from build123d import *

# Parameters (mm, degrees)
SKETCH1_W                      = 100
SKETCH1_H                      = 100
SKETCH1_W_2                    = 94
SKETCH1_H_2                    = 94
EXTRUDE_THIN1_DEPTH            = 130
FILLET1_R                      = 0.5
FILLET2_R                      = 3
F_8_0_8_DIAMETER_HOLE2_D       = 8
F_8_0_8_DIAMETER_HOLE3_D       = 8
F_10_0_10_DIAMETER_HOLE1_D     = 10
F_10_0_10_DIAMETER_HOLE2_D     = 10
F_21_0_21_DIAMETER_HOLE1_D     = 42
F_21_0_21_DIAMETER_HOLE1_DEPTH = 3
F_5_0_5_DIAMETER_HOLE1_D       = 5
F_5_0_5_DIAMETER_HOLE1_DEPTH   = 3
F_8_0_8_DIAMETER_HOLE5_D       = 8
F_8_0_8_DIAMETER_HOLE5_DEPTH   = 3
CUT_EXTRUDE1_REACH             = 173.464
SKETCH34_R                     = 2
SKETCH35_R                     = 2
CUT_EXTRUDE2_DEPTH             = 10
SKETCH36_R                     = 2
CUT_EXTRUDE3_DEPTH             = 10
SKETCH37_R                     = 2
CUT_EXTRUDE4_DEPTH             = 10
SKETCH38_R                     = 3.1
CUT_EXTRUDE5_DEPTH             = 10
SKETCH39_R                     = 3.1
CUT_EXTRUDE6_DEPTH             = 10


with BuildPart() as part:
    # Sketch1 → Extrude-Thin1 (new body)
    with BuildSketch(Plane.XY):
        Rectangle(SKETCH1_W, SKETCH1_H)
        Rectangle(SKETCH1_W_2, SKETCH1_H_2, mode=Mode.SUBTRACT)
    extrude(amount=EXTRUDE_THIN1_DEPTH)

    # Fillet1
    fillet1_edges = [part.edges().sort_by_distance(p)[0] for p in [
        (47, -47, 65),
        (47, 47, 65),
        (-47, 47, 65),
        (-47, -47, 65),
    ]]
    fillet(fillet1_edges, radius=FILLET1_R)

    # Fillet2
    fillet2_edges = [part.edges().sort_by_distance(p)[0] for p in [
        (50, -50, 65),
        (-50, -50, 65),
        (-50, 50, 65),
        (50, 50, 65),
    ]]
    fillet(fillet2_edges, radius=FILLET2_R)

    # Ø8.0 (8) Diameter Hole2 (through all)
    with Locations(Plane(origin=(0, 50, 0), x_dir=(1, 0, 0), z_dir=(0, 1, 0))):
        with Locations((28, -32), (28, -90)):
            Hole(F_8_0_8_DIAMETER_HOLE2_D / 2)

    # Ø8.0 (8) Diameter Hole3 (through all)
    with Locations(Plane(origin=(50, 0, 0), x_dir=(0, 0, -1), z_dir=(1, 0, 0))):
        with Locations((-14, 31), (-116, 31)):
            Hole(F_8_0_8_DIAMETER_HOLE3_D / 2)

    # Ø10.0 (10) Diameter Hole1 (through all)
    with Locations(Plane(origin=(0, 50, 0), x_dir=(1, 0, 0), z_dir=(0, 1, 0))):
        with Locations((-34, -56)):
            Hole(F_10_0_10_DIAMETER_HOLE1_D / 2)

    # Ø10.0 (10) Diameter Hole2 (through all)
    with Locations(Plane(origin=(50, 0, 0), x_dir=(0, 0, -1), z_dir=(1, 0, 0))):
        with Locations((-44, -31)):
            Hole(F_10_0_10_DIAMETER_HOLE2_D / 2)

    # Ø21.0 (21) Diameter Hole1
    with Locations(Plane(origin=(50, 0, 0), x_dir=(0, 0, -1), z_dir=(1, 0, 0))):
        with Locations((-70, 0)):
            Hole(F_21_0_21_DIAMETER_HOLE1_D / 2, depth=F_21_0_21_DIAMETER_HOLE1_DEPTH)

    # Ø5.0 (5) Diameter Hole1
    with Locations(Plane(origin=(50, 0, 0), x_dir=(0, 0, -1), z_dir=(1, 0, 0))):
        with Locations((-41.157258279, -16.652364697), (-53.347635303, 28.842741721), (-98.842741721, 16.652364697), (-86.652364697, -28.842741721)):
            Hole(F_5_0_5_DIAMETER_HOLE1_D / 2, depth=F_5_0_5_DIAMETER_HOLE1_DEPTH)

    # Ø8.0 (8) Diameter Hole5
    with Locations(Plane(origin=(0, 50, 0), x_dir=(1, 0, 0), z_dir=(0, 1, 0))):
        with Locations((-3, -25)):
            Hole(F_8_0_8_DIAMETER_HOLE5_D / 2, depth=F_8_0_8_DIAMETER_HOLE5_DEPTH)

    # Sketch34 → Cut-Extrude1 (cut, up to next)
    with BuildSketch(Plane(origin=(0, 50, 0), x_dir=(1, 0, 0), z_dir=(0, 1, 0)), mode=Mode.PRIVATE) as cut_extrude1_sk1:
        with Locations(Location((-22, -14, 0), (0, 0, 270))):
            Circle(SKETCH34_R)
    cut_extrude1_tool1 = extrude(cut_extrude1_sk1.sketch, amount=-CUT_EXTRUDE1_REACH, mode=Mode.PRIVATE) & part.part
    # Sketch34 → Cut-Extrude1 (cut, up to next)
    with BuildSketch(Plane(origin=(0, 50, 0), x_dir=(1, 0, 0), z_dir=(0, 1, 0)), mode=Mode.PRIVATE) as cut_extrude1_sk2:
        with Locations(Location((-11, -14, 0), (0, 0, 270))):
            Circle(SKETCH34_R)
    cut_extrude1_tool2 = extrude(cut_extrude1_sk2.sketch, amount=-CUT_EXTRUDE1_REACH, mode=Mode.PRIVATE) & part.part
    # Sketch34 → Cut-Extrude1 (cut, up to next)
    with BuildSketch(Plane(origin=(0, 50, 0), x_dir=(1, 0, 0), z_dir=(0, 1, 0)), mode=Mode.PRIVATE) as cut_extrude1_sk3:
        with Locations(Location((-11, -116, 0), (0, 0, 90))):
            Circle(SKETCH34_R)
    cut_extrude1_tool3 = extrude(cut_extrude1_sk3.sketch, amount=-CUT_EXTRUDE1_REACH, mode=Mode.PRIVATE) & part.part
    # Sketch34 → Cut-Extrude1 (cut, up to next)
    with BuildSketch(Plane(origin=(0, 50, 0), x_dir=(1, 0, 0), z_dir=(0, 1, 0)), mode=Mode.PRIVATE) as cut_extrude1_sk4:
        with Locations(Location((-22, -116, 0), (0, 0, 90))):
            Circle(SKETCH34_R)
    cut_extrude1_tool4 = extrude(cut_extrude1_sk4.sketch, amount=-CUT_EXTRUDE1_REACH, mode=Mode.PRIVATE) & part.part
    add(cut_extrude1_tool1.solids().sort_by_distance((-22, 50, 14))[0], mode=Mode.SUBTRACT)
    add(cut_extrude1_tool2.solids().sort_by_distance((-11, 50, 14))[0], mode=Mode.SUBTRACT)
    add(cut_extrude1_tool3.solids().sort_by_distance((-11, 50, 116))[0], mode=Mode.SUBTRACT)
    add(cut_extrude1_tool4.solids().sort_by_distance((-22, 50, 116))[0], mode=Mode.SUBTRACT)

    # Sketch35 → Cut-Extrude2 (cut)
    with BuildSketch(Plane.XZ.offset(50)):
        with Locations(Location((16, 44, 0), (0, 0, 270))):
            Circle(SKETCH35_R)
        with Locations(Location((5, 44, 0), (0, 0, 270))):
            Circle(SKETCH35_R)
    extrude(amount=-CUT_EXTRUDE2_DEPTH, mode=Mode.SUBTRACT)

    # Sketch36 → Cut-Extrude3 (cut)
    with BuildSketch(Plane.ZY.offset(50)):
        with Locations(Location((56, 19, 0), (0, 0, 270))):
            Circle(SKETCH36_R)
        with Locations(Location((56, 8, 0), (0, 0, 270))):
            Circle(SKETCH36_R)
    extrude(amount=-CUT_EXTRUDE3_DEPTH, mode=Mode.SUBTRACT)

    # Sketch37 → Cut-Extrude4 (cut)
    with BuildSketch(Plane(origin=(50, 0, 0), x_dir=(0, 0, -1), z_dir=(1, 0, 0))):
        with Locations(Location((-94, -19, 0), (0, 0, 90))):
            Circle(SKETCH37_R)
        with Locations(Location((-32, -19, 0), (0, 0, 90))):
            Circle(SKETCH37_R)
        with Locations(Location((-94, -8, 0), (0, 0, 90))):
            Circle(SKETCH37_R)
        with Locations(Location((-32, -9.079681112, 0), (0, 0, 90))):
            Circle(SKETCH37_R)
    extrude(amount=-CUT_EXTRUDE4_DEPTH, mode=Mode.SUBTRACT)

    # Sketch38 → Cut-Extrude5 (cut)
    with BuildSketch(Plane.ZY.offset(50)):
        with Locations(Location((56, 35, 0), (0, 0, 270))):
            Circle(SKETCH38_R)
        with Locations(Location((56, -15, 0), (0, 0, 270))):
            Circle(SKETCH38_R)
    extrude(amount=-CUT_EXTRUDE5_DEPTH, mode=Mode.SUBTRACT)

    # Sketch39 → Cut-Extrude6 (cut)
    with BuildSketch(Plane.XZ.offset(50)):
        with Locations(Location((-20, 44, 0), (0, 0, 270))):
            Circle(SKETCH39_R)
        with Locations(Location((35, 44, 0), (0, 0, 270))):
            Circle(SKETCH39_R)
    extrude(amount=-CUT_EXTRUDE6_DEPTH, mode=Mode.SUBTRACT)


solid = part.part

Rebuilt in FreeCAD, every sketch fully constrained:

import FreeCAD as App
import Part
import Sketcher
from FreeCAD import Vector
Q = App.Units.Quantity


def edges_at(feature, points):
    """Names of the edges that pass closest to the given points."""
    edges = feature.Shape.Edges
    near = lambda p: min(range(len(edges)), key=lambda i: edges[i].distToShape(Part.Vertex(*p))[0])
    return sorted({f"Edge{near(p) + 1}" for p in points})

doc = App.newDocument("Part")
body = doc.addObject("PartDesign::Body", "Body")

# Sketch on XY plane
sketch1 = doc.addObject("Sketcher::SketchObject", "Sketch")
body.addObject(sketch1)
sketch1.AttachmentSupport = (doc.XY_Plane, [""])
sketch1.MapMode = "FlatFace"
sketch1.addGeometry([
    Part.LineSegment(Vector(-50, 50, 0), Vector(-50, -50, 0)),  # 0
    Part.LineSegment(Vector(-50, -50, 0), Vector(50, -50, 0)),  # 1
    Part.LineSegment(Vector(50, -50, 0), Vector(50, 50, 0)),  # 2
    Part.LineSegment(Vector(50, 50, 0), Vector(-50, 50, 0)),  # 3
    Part.LineSegment(Vector(47, -47, 0), Vector(-47, -47, 0)),  # 4
    Part.LineSegment(Vector(-47, -47, 0), Vector(-47, 47, 0)),  # 5
    Part.LineSegment(Vector(-47, 47, 0), Vector(47, 47, 0)),  # 6
    Part.LineSegment(Vector(47, 47, 0), Vector(47, -47, 0)),  # 7
], False)
sketch1.addConstraint([
    Sketcher.Constraint("Coincident", 0, 2, 1, 1),
    Sketcher.Constraint("Coincident", 1, 2, 2, 1),
    Sketcher.Constraint("Coincident", 2, 2, 3, 1),
    Sketcher.Constraint("Coincident", 3, 2, 0, 1),
    Sketcher.Constraint("Coincident", 4, 2, 5, 1),
    Sketcher.Constraint("Coincident", 5, 2, 6, 1),
    Sketcher.Constraint("Coincident", 6, 2, 7, 1),
    Sketcher.Constraint("Coincident", 7, 2, 4, 1),
    Sketcher.Constraint("Vertical", 0),
    Sketcher.Constraint("Horizontal", 1),
    Sketcher.Constraint("Vertical", 2),
    Sketcher.Constraint("Horizontal", 3),
    Sketcher.Constraint("Horizontal", 4),
    Sketcher.Constraint("Vertical", 5),
    Sketcher.Constraint("Horizontal", 6),
    Sketcher.Constraint("Vertical", 7),
    Sketcher.Constraint("Symmetric", 0, 2, 2, 2, -1, 1),
    Sketcher.Constraint("Symmetric", 4, 2, 6, 2, -1, 1),
    Sketcher.Constraint("Equal", 3, 0),
    Sketcher.Constraint("Equal", 6, 5),
    Sketcher.Constraint("DistanceX", 1, 1, 1, 2, Q("100 mm")),
    Sketcher.Constraint("DistanceX", 4, 2, 4, 1, Q("94 mm")),
])
pad1 = doc.addObject("PartDesign::Pad", "Pad")
body.addObject(pad1)
pad1.Profile = sketch1
pad1.Length = 130
doc.recompute()

fillet = doc.addObject("PartDesign::Fillet", "Fillet")
body.addObject(fillet)
fillet.Base = (pad1, edges_at(pad1, [
    (47, -47, 65),
    (47, 47, 65),
    (-47, 47, 65),
    (-47, -47, 65),
]))
fillet.Radius = 0.5
doc.recompute()

fillet2 = doc.addObject("PartDesign::Fillet", "Fillet001")
body.addObject(fillet2)
fillet2.Base = (fillet, edges_at(fillet, [
    (50, -50, 65),
    (-50, -50, 65),
    (-50, 50, 65),
    (50, 50, 65),
]))
fillet2.Radius = 3

# Sketch on XZ plane
sketch2 = doc.addObject("Sketcher::SketchObject", "Sketch001")
body.addObject(sketch2)
sketch2.AttachmentSupport = (doc.XZ_Plane, [""])
sketch2.MapMode = "FlatFace"
sketch2.AttachmentOffset = App.Placement(Vector(0, 0, -50), App.Rotation())
sketch2.addGeometry([
    Part.Circle(Vector(28, 32, 0), Vector(0, 0, 1), 4),
    Part.Circle(Vector(28, 90, 0), Vector(0, 0, 1), 4),
], False)
sketch2.addConstraint([
    Sketcher.Constraint("Equal", 0, 1),
    Sketcher.Constraint("Vertical", 0, 3, 1, 3),
    Sketcher.Constraint("Diameter", 0, Q("8 mm")),
    Sketcher.Constraint("DistanceX", -1, 1, 0, 3, Q("28 mm")),
    Sketcher.Constraint("DistanceY", -1, 1, 0, 3, Q("32 mm")),
    Sketcher.Constraint("DistanceY", -1, 1, 1, 3, Q("90 mm")),
])
doc.recompute()
hole = doc.addObject("PartDesign::Hole", "Hole")
body.addObject(hole)
hole.Profile = sketch2
hole.ThreadType = "None"
hole.Diameter = 8
hole.DepthType = "ThroughAll"
hole.Reversed = True

# Sketch on YZ plane
sketch3 = doc.addObject("Sketcher::SketchObject", "Sketch002")
body.addObject(sketch3)
sketch3.AttachmentSupport = (doc.YZ_Plane, [""])
sketch3.MapMode = "FlatFace"
sketch3.AttachmentOffset = App.Placement(Vector(0, 0, 50), App.Rotation())
sketch3.addGeometry([
    Part.Circle(Vector(31, 14, 0), Vector(0, 0, 1), 4),
    Part.Circle(Vector(31, 116, 0), Vector(0, 0, 1), 4),
], False)
sketch3.addConstraint([
    Sketcher.Constraint("Equal", 0, 1),
    Sketcher.Constraint("Vertical", 0, 3, 1, 3),
    Sketcher.Constraint("Diameter", 0, Q("8 mm")),
    Sketcher.Constraint("DistanceX", -1, 1, 0, 3, Q("31 mm")),
    Sketcher.Constraint("DistanceY", -1, 1, 0, 3, Q("14 mm")),
    Sketcher.Constraint("DistanceY", -1, 1, 1, 3, Q("116 mm")),
])
doc.recompute()
hole2 = doc.addObject("PartDesign::Hole", "Hole001")
body.addObject(hole2)
hole2.Profile = sketch3
hole2.ThreadType = "None"
hole2.Diameter = 8
hole2.DepthType = "ThroughAll"

# Sketch on XZ plane
sketch4 = doc.addObject("Sketcher::SketchObject", "Sketch003")
body.addObject(sketch4)
sketch4.AttachmentSupport = (doc.XZ_Plane, [""])
sketch4.MapMode = "FlatFace"
sketch4.AttachmentOffset = App.Placement(Vector(0, 0, -50), App.Rotation())
sketch4.addGeometry(Part.Circle(Vector(-34, 56, 0), Vector(0, 0, 1), 5), False)
sketch4.addConstraint([
    Sketcher.Constraint("Diameter", 0, Q("10 mm")),
    Sketcher.Constraint("DistanceX", 0, 3, -1, 1, Q("34 mm")),
    Sketcher.Constraint("DistanceY", -1, 1, 0, 3, Q("56 mm")),
])
doc.recompute()
hole3 = doc.addObject("PartDesign::Hole", "Hole002")
body.addObject(hole3)
hole3.Profile = sketch4
hole3.ThreadType = "None"
hole3.Diameter = 10
hole3.DepthType = "ThroughAll"
hole3.Reversed = True

# Sketch on YZ plane
sketch5 = doc.addObject("Sketcher::SketchObject", "Sketch004")
body.addObject(sketch5)
sketch5.AttachmentSupport = (doc.YZ_Plane, [""])
sketch5.MapMode = "FlatFace"
sketch5.AttachmentOffset = App.Placement(Vector(0, 0, 50), App.Rotation())
sketch5.addGeometry(Part.Circle(Vector(-31, 44, 0), Vector(0, 0, 1), 5), False)
sketch5.addConstraint([
    Sketcher.Constraint("Diameter", 0, Q("10 mm")),
    Sketcher.Constraint("DistanceX", 0, 3, -1, 1, Q("31 mm")),
    Sketcher.Constraint("DistanceY", -1, 1, 0, 3, Q("44 mm")),
])
doc.recompute()
hole4 = doc.addObject("PartDesign::Hole", "Hole003")
body.addObject(hole4)
hole4.Profile = sketch5
hole4.ThreadType = "None"
hole4.Diameter = 10
hole4.DepthType = "ThroughAll"

# Sketch on YZ plane
sketch6 = doc.addObject("Sketcher::SketchObject", "Sketch005")
body.addObject(sketch6)
sketch6.AttachmentSupport = (doc.YZ_Plane, [""])
sketch6.MapMode = "FlatFace"
sketch6.AttachmentOffset = App.Placement(Vector(0, 0, 50), App.Rotation())
sketch6.addGeometry(Part.Circle(Vector(0, 70, 0), Vector(0, 0, 1), 21), False)
sketch6.addConstraint([
    Sketcher.Constraint("PointOnObject", 0, 3, -2),
    Sketcher.Constraint("Diameter", 0, Q("42 mm")),
    Sketcher.Constraint("DistanceY", -1, 1, 0, 3, Q("70 mm")),
])
doc.recompute()
hole5 = doc.addObject("PartDesign::Hole", "Hole004")
body.addObject(hole5)
hole5.Profile = sketch6
hole5.ThreadType = "None"
hole5.Diameter = 42
hole5.DepthType = "Dimension"
hole5.Depth = 3
hole5.DrillPoint = "Flat"

# Sketch on YZ plane
sketch7 = doc.addObject("Sketcher::SketchObject", "Sketch006")
body.addObject(sketch7)
sketch7.AttachmentSupport = (doc.YZ_Plane, [""])
sketch7.MapMode = "FlatFace"
sketch7.AttachmentOffset = App.Placement(Vector(0, 0, 50), App.Rotation())
sketch7.addGeometry([
    Part.Circle(Vector(-16.7, 41.2, 0), Vector(0, 0, 1), 2.5),
    Part.Circle(Vector(28.8, 53.3, 0), Vector(0, 0, 1), 2.5),
    Part.Circle(Vector(16.7, 98.8, 0), Vector(0, 0, 1), 2.5),
    Part.Circle(Vector(-28.8, 86.7, 0), Vector(0, 0, 1), 2.5),
], False)
sketch7.addConstraint([
    Sketcher.Constraint("Equal", 0, 1),
    Sketcher.Constraint("Equal", 1, 2),
    Sketcher.Constraint("Equal", 2, 3),
    Sketcher.Constraint("Diameter", 0, Q("5 mm")),
    Sketcher.Constraint("DistanceY", -1, 1, 0, 3, Q("41.157258 mm")),
    Sketcher.Constraint("DistanceX", -1, 1, 1, 3, Q("28.842742 mm")),
    Sketcher.Constraint("DistanceY", -1, 1, 2, 3, Q("98.842742 mm")),
    Sketcher.Constraint("DistanceX", 3, 3, -1, 1, Q("28.842742 mm")),
    Sketcher.Constraint("DistanceX", 0, 3, 2, 3, Q("33.304729 mm")),
    Sketcher.Constraint("DistanceY", 1, 3, 3, 3, Q("33.304729 mm")),
    Sketcher.Constraint("DistanceX", 0, 3, -1, 1, Q("16.652365 mm")),
    Sketcher.Constraint("DistanceY", -1, 1, 1, 3, Q("53.347635 mm")),
])
doc.recompute()
hole6 = doc.addObject("PartDesign::Hole", "Hole005")
body.addObject(hole6)
hole6.Profile = sketch7
hole6.ThreadType = "None"
hole6.Diameter = 5
hole6.DepthType = "Dimension"
hole6.Depth = 3
hole6.DrillPoint = "Flat"

# Sketch on XZ plane
sketch8 = doc.addObject("Sketcher::SketchObject", "Sketch007")
body.addObject(sketch8)
sketch8.AttachmentSupport = (doc.XZ_Plane, [""])
sketch8.MapMode = "FlatFace"
sketch8.AttachmentOffset = App.Placement(Vector(0, 0, -50), App.Rotation())
sketch8.addGeometry(Part.Circle(Vector(-3, 25, 0), Vector(0, 0, 1), 4), False)
sketch8.addConstraint([
    Sketcher.Constraint("Diameter", 0, Q("8 mm")),
    Sketcher.Constraint("DistanceX", 0, 3, -1, 1, Q("3 mm")),
    Sketcher.Constraint("DistanceY", -1, 1, 0, 3, Q("25 mm")),
])
doc.recompute()
hole7 = doc.addObject("PartDesign::Hole", "Hole006")
body.addObject(hole7)
hole7.Profile = sketch8
hole7.ThreadType = "None"
hole7.Diameter = 8
hole7.DepthType = "Dimension"
hole7.Depth = 3
hole7.DrillPoint = "Flat"
hole7.Reversed = True

# Sketch on XZ plane
sketch9 = doc.addObject("Sketcher::SketchObject", "Sketch008")
body.addObject(sketch9)
sketch9.AttachmentSupport = (doc.XZ_Plane, [""])
sketch9.MapMode = "FlatFace"
sketch9.AttachmentOffset = App.Placement(Vector(0, 0, -50), App.Rotation())
sketch9.addGeometry(Part.Circle(Vector(-22, 14, 0), Vector(0, 0, 1), 2), False)
sketch9.addConstraint([
    Sketcher.Constraint("Diameter", 0, Q("4 mm")),
    Sketcher.Constraint("DistanceX", 0, 3, -1, 1, Q("22 mm")),
    Sketcher.Constraint("DistanceY", -1, 1, 0, 3, Q("14 mm")),
])
pocket1 = doc.addObject("PartDesign::Pocket", "Pocket")
body.addObject(pocket1)
pocket1.Profile = sketch9
pocket1.Type = "UpToFirst"
pocket1.Reversed = True

# Sketch on XZ plane
sketch10 = doc.addObject("Sketcher::SketchObject", "Sketch009")
body.addObject(sketch10)
sketch10.AttachmentSupport = (doc.XZ_Plane, [""])
sketch10.MapMode = "FlatFace"
sketch10.AttachmentOffset = App.Placement(Vector(0, 0, -50), App.Rotation())
sketch10.addGeometry(Part.Circle(Vector(-11, 14, 0), Vector(0, 0, 1), 2), False)
sketch10.addConstraint([
    Sketcher.Constraint("Diameter", 0, Q("4 mm")),
    Sketcher.Constraint("DistanceX", 0, 3, -1, 1, Q("11 mm")),
    Sketcher.Constraint("DistanceY", -1, 1, 0, 3, Q("14 mm")),
])
pocket2 = doc.addObject("PartDesign::Pocket", "Pocket001")
body.addObject(pocket2)
pocket2.Profile = sketch10
pocket2.Type = "UpToFirst"
pocket2.Reversed = True

# Sketch on XZ plane
sketch11 = doc.addObject("Sketcher::SketchObject", "Sketch010")
body.addObject(sketch11)
sketch11.AttachmentSupport = (doc.XZ_Plane, [""])
sketch11.MapMode = "FlatFace"
sketch11.AttachmentOffset = App.Placement(Vector(0, 0, -50), App.Rotation())
sketch11.addGeometry(Part.Circle(Vector(-11, 116, 0), Vector(0, 0, 1), 2), False)
sketch11.addConstraint([
    Sketcher.Constraint("Diameter", 0, Q("4 mm")),
    Sketcher.Constraint("DistanceX", 0, 3, -1, 1, Q("11 mm")),
    Sketcher.Constraint("DistanceY", -1, 1, 0, 3, Q("116 mm")),
])
pocket3 = doc.addObject("PartDesign::Pocket", "Pocket002")
body.addObject(pocket3)
pocket3.Profile = sketch11
pocket3.Type = "UpToFirst"
pocket3.Reversed = True

# Sketch on XZ plane
sketch12 = doc.addObject("Sketcher::SketchObject", "Sketch011")
body.addObject(sketch12)
sketch12.AttachmentSupport = (doc.XZ_Plane, [""])
sketch12.MapMode = "FlatFace"
sketch12.AttachmentOffset = App.Placement(Vector(0, 0, -50), App.Rotation())
sketch12.addGeometry(Part.Circle(Vector(-22, 116, 0), Vector(0, 0, 1), 2), False)
sketch12.addConstraint([
    Sketcher.Constraint("Diameter", 0, Q("4 mm")),
    Sketcher.Constraint("DistanceX", 0, 3, -1, 1, Q("22 mm")),
    Sketcher.Constraint("DistanceY", -1, 1, 0, 3, Q("116 mm")),
])
pocket4 = doc.addObject("PartDesign::Pocket", "Pocket003")
body.addObject(pocket4)
pocket4.Profile = sketch12
pocket4.Type = "UpToFirst"
pocket4.Reversed = True

# Sketch on XZ plane
sketch13 = doc.addObject("Sketcher::SketchObject", "Sketch012")
body.addObject(sketch13)
sketch13.AttachmentSupport = (doc.XZ_Plane, [""])
sketch13.MapMode = "FlatFace"
sketch13.AttachmentOffset = App.Placement(Vector(0, 0, 50), App.Rotation())
sketch13.addGeometry([
    Part.Circle(Vector(16, 44, 0), Vector(0, 0, 1), 2),
    Part.Circle(Vector(5, 44, 0), Vector(0, 0, 1), 2),
], False)
sketch13.addConstraint([
    Sketcher.Constraint("Equal", 0, 1),
    Sketcher.Constraint("Horizontal", 0, 3, 1, 3),
    Sketcher.Constraint("Diameter", 0, Q("4 mm")),
    Sketcher.Constraint("DistanceX", -1, 1, 0, 3, Q("16 mm")),
    Sketcher.Constraint("DistanceY", -1, 1, 0, 3, Q("44 mm")),
    Sketcher.Constraint("DistanceX", -1, 1, 1, 3, Q("5 mm")),
])
pocket5 = doc.addObject("PartDesign::Pocket", "Pocket004")
body.addObject(pocket5)
pocket5.Profile = sketch13
pocket5.Length = 10

# Sketch on YZ plane
sketch14 = doc.addObject("Sketcher::SketchObject", "Sketch013")
body.addObject(sketch14)
sketch14.AttachmentSupport = (doc.YZ_Plane, [""])
sketch14.MapMode = "FlatFace"
sketch14.AttachmentOffset = App.Placement(Vector(0, 0, -50), App.Rotation())
sketch14.addGeometry([
    Part.Circle(Vector(19, 56, 0), Vector(0, 0, 1), 2),
    Part.Circle(Vector(8, 56, 0), Vector(0, 0, 1), 2),
], False)
sketch14.addConstraint([
    Sketcher.Constraint("Equal", 0, 1),
    Sketcher.Constraint("Horizontal", 0, 3, 1, 3),
    Sketcher.Constraint("Diameter", 0, Q("4 mm")),
    Sketcher.Constraint("DistanceX", -1, 1, 0, 3, Q("19 mm")),
    Sketcher.Constraint("DistanceY", -1, 1, 0, 3, Q("56 mm")),
    Sketcher.Constraint("DistanceX", -1, 1, 1, 3, Q("8 mm")),
])
pocket6 = doc.addObject("PartDesign::Pocket", "Pocket005")
body.addObject(pocket6)
pocket6.Profile = sketch14
pocket6.Length = 10
pocket6.Reversed = True

# Sketch on YZ plane
sketch15 = doc.addObject("Sketcher::SketchObject", "Sketch014")
body.addObject(sketch15)
sketch15.AttachmentSupport = (doc.YZ_Plane, [""])
sketch15.MapMode = "FlatFace"
sketch15.AttachmentOffset = App.Placement(Vector(0, 0, 50), App.Rotation())
sketch15.addGeometry([
    Part.Circle(Vector(-19, 94, 0), Vector(0, 0, 1), 2),
    Part.Circle(Vector(-19, 32, 0), Vector(0, 0, 1), 2),
    Part.Circle(Vector(-8, 94, 0), Vector(0, 0, 1), 2),
    Part.Circle(Vector(-9.1, 32, 0), Vector(0, 0, 1), 2),
], False)
sketch15.addConstraint([
    Sketcher.Constraint("Equal", 0, 1),
    Sketcher.Constraint("Equal", 1, 2),
    Sketcher.Constraint("Equal", 2, 3),
    Sketcher.Constraint("Horizontal", 0, 3, 2, 3),
    Sketcher.Constraint("Horizontal", 1, 3, 3, 3),
    Sketcher.Constraint("Vertical", 0, 3, 1, 3),
    Sketcher.Constraint("Diameter", 0, Q("4 mm")),
    Sketcher.Constraint("DistanceX", 0, 3, -1, 1, Q("19 mm")),
    Sketcher.Constraint("DistanceY", -1, 1, 0, 3, Q("94 mm")),
    Sketcher.Constraint("DistanceY", -1, 1, 1, 3, Q("32 mm")),
    Sketcher.Constraint("DistanceX", 2, 3, -1, 1, Q("8 mm")),
    Sketcher.Constraint("DistanceX", 3, 3, -1, 1, Q("9.079681 mm")),
])
pocket7 = doc.addObject("PartDesign::Pocket", "Pocket006")
body.addObject(pocket7)
pocket7.Profile = sketch15
pocket7.Length = 10

# Sketch on YZ plane
sketch16 = doc.addObject("Sketcher::SketchObject", "Sketch015")
body.addObject(sketch16)
sketch16.AttachmentSupport = (doc.YZ_Plane, [""])
sketch16.MapMode = "FlatFace"
sketch16.AttachmentOffset = App.Placement(Vector(0, 0, -50), App.Rotation())
sketch16.addGeometry([
    Part.Circle(Vector(35, 56, 0), Vector(0, 0, 1), 3.1),
    Part.Circle(Vector(-15, 56, 0), Vector(0, 0, 1), 3.1),
], False)
sketch16.addConstraint([
    Sketcher.Constraint("Equal", 0, 1),
    Sketcher.Constraint("Horizontal", 0, 3, 1, 3),
    Sketcher.Constraint("Diameter", 0, Q("6.2 mm")),
    Sketcher.Constraint("DistanceX", -1, 1, 0, 3, Q("35 mm")),
    Sketcher.Constraint("DistanceY", -1, 1, 0, 3, Q("56 mm")),
    Sketcher.Constraint("DistanceX", 1, 3, -1, 1, Q("15 mm")),
])
pocket8 = doc.addObject("PartDesign::Pocket", "Pocket007")
body.addObject(pocket8)
pocket8.Profile = sketch16
pocket8.Length = 10
pocket8.Reversed = True

# Sketch on XZ plane
sketch17 = doc.addObject("Sketcher::SketchObject", "Sketch016")
body.addObject(sketch17)
sketch17.AttachmentSupport = (doc.XZ_Plane, [""])
sketch17.MapMode = "FlatFace"
sketch17.AttachmentOffset = App.Placement(Vector(0, 0, 50), App.Rotation())
sketch17.addGeometry([
    Part.Circle(Vector(-20, 44, 0), Vector(0, 0, 1), 3.1),
    Part.Circle(Vector(35, 44, 0), Vector(0, 0, 1), 3.1),
], False)
sketch17.addConstraint([
    Sketcher.Constraint("Equal", 0, 1),
    Sketcher.Constraint("Horizontal", 0, 3, 1, 3),
    Sketcher.Constraint("Diameter", 0, Q("6.2 mm")),
    Sketcher.Constraint("DistanceX", 0, 3, -1, 1, Q("20 mm")),
    Sketcher.Constraint("DistanceY", -1, 1, 0, 3, Q("44 mm")),
    Sketcher.Constraint("DistanceX", -1, 1, 1, 3, Q("35 mm")),
])
pocket9 = doc.addObject("PartDesign::Pocket", "Pocket008")
body.addObject(pocket9)
pocket9.Profile = sketch17
pocket9.Length = 10

doc.recompute()
